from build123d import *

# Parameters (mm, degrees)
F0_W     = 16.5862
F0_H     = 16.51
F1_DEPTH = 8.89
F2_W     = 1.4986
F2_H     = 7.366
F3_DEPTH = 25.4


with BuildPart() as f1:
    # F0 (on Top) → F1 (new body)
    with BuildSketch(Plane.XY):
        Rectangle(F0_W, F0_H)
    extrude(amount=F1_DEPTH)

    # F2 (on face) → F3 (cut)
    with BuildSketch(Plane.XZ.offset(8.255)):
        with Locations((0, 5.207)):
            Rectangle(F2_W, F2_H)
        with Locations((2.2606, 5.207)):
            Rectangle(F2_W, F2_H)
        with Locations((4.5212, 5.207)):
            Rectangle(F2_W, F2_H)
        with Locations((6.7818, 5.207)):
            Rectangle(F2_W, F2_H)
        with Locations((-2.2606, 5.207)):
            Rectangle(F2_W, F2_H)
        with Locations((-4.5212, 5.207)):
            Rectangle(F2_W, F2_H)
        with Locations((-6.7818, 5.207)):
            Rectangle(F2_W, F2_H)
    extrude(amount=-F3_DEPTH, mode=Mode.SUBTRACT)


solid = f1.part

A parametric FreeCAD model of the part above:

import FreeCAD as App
import Part
import Sketcher
from FreeCAD import Vector
Q = App.Units.Quantity


def add_polygon(sketch, points):
    """Adds a closed chain of lines whose ends are joined by coincident constraints."""
    first, n = sketch.GeometryCount, len(points)
    for a, b in zip(points, points[1:] + points[:1]):
        sketch.addGeometry(Part.LineSegment(App.Vector(*a, 0), App.Vector(*b, 0)), False)
    for i in range(n):
        sketch.addConstraint(Sketcher.Constraint("Coincident", first + i, 2, first + (i + 1) % n, 1))

doc = App.newDocument("Part")
body = doc.addObject("PartDesign::Body", "Body")

sketch1 = body.newObject("Sketcher::SketchObject", "Sketch")
sketch1.AttachmentSupport = (doc.getObject("XY_Plane"), [""])
sketch1.MapMode = "FlatFace"
add_polygon(sketch1, [(-8, 8), (-8, -8), (8, -8), (8, 8)])
sketch1.addConstraint([
    Sketcher.Constraint("Vertical", 0),
    Sketcher.Constraint("Horizontal", 1),
    Sketcher.Constraint("Vertical", 2),
    Sketcher.Constraint("Horizontal", 3),
    Sketcher.Constraint("Symmetric", 0, 2, 2, 2, -1, 1),
    Sketcher.Constraint("DistanceY", 0, 2, 0, 1, Q("0.65 in")),
    Sketcher.Constraint("DistanceX", 1, 1, 1, 2, Q("0.653 in")),
])
pad1 = body.newObject("PartDesign::Pad", "Pad")
pad1.Profile = sketch1
pad1.Length = Q("0.35 in")

sketch2 = body.newObject("Sketcher::SketchObject", "Sketch001")
sketch2.AttachmentSupport = (doc.getObject("XZ_Plane"), [""])
sketch2.MapMode = "FlatFace"
sketch2.AttachmentOffset = App.Placement(Vector(0, 0, 0.325 * 25.4), App.Rotation())
add_polygon(sketch2, [(-0.7, 8.9), (-0.7, 1.5), (0.7, 1.5), (0.7, 8.9)])
add_polygon(sketch2, [(1.5, 8.9), (1.5, 1.5), (3, 1.5), (3, 8.9)])
add_polygon(sketch2, [(3.8, 8.9), (3.8, 1.5), (5.3, 1.5), (5.3, 8.9)])
add_polygon(sketch2, [(6, 8.9), (6, 1.5), (7.5, 1.5), (7.5, 8.9)])
add_polygon(sketch2, [(-3, 8.9), (-3, 1.5), (-1.5, 1.5), (-1.5, 8.9)])
add_polygon(sketch2, [(-5.3, 8.9), (-5.3, 1.5), (-3.8, 1.5), (-3.8, 8.9)])
add_polygon(sketch2, [(-7.5, 8.9), (-7.5, 1.5), (-6, 1.5), (-6, 8.9)])
sketch2.addConstraint([
    Sketcher.Constraint("Vertical", 0),
    Sketcher.Constraint("Horizontal", 1),
    Sketcher.Constraint("Vertical", 2),
    Sketcher.Constraint("Horizontal", 3),
    Sketcher.Constraint("Vertical", 4),
    Sketcher.Constraint("Horizontal", 5),
    Sketcher.Constraint("Vertical", 6),
    Sketcher.Constraint("Horizontal", 7),
    Sketcher.Constraint("Vertical", 8),
    Sketcher.Constraint("Horizontal", 9),
    Sketcher.Constraint("Vertical", 10),
    Sketcher.Constraint("Horizontal", 11),
    Sketcher.Constraint("Vertical", 12),
    Sketcher.Constraint("Horizontal", 13),
    Sketcher.Constraint("Vertical", 14),
    Sketcher.Constraint("Horizontal", 15),
    Sketcher.Constraint("Vertical", 16),
    Sketcher.Constraint("Horizontal", 17),
    Sketcher.Constraint("Vertical", 18),
    Sketcher.Constraint("Horizontal", 19),
    Sketcher.Constraint("Vertical", 20),
    Sketcher.Constraint("Horizontal", 21),
    Sketcher.Constraint("Vertical", 22),
    Sketcher.Constraint("Horizontal", 23),
    Sketcher.Constraint("Vertical", 24),
    Sketcher.Constraint("Horizontal", 25),
    Sketcher.Constraint("Vertical", 26),
    Sketcher.Constraint("Horizontal", 27),
    Sketcher.Constraint("Symmetric", 5, 2, 16, 2, -2),
    Sketcher.Constraint("Symmetric", 7, 2, 18, 2, -2),
    Sketcher.Constraint("Symmetric", 9, 2, 20, 2, -2),
    Sketcher.Constraint("Symmetric", 11, 2, 22, 2, -2),
    Sketcher.Constraint("Symmetric", 13, 2, 24, 2, -2),
    Sketcher.Constraint("Symmetric", 15, 2, 26, 2, -2),
    Sketcher.Constraint("Horizontal", 1, 2, 4, 2),
    Sketcher.Constraint("Horizontal", 3, 2, 6, 2),
    Sketcher.Constraint("Horizontal", 5, 2, 8, 2),
    Sketcher.Constraint("Horizontal", 7, 2, 10, 2),
    Sketcher.Constraint("Horizontal", 9, 2, 12, 2),
    Sketcher.Constraint("Horizontal", 11, 2, 14, 2),
    Sketcher.Constraint("Equal", 3, 5),
    Sketcher.Constraint("Equal", 7, 9),
    Sketcher.Constraint("Equal", 11, 13),
    Sketcher.Constraint("DistanceY", 0, 2, 0, 1, Q("0.29 in")),
    Sketcher.Constraint("DistanceX", 1, 1, 1, 2, Q("0.059 in")),
    Sketcher.Constraint("DistanceY", -1, 1, 0, 2, Q("0.06 in")),
    Sketcher.Constraint("DistanceX", 1, 2, 4, 2, Q("0.03 in")),
    Sketcher.Constraint("DistanceX", 5, 2, 8, 2, Q("0.03 in")),
    Sketcher.Constraint("DistanceX", 9, 2, 12, 2, Q("0.03 in")),
    Sketcher.Constraint("DistanceX", 17, 2, 0, 2, Q("0.03 in")),
])
pocket1 = body.newObject("PartDesign::Pocket", "Pocket")
pocket1.Profile = sketch2
pocket1.Length = Q("1 in")

doc.recompute()
